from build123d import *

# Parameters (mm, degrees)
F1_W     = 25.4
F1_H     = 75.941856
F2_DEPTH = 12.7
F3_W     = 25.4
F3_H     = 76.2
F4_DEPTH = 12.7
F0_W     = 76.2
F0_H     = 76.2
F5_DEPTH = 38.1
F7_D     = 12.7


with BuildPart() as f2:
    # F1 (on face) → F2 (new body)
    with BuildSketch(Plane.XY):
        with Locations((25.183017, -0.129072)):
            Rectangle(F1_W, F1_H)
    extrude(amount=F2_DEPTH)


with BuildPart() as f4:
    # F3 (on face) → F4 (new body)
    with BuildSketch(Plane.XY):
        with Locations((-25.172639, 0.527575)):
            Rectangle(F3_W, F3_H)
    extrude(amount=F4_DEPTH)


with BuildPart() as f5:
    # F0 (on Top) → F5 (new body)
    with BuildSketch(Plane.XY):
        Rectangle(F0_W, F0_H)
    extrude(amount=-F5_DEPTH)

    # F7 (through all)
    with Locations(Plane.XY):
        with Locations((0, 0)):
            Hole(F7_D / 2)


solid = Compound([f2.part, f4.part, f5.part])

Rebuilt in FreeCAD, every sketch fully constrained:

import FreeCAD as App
import Part
import Sketcher
Q = App.Units.Quantity


def add_polygon(sketch, points):
    """Adds a closed chain of lines whose ends are joined by coincident constraints."""
    first, n = sketch.GeometryCount, len(points)
    for a, b in zip(points, points[1:] + points[:1]):
        sketch.addGeometry(Part.LineSegment(App.Vector(*a, 0), App.Vector(*b, 0)), False)
    for i in range(n):
        sketch.addConstraint(Sketcher.Constraint("Coincident", first + i, 2, first + (i + 1) % n, 1))

doc = App.newDocument("Part")
params = doc.addObject("Spreadsheet::Sheet", "Params")
for row, (alias, value) in enumerate([
    ("sketch1_width", "1 in"),
    ("pad1_length", "0.5 in"),
    ("sketch2_width", "1 in"),
    ("sketch2_height", "3 in"),
    ("pad2_length", "0.5 in"),
    ("sketch3_width", "3 in"),
    ("pad3_length", "1.5 in"),
    ("sketch4_diameter", "0.5 in"),
    ("hole_diameter", "0.5 in"),
], start=1):
    params.set(f"A{row}", alias)
    params.set(f"B{row}", "=" + value)
    params.setAlias(f"B{row}", alias)

body = doc.addObject("PartDesign::Body", "Body")

# Sketch on XY plane
sketch1 = body.newObject("Sketcher::SketchObject", "Sketch")
sketch1.AttachmentSupport = (doc.getObject("XY_Plane"), [""])
sketch1.MapMode = "FlatFace"
add_polygon(sketch1, [(12, 38), (12, -38), (38, -38), (38, 38)])  # lines 0-3
sketch1.addConstraint([
    Sketcher.Constraint("Vertical", 0),
    Sketcher.Constraint("Horizontal", 1),
    Sketcher.Constraint("Vertical", 2),
    Sketcher.Constraint("Horizontal", 3),
    Sketcher.Constraint("DistanceX", 1, 1, 1, 2, Q("1 in")),
    Sketcher.Constraint("DistanceY", 0, 2, -1, 1, Q("1.5 in")),
    Sketcher.Constraint("DistanceY", 0, 2, 0, 1, Q("75.941856 mm")),
    Sketcher.Constraint("DistanceX", -1, 1, 0, 2, Q("12.483017 mm")),
])
sketch1.setExpression("Constraints[8]", "Params.sketch1_width")
pad1 = body.newObject("PartDesign::Pad", "Pad")
pad1.Profile = sketch1
pad1.setExpression("Length", "Params.pad1_length")
body2 = doc.addObject("PartDesign::Body", "Body001")

# Sketch on XY plane
sketch2 = body2.newObject("Sketcher::SketchObject", "Sketch001")
sketch2.AttachmentSupport = (doc.getObject("XY_Plane001"), [""])
sketch2.MapMode = "FlatFace"
add_polygon(sketch2, [(-38, 39), (-38, -38), (-12, -38), (-12, 39)])  # lines 0-3
sketch2.addConstraint([
    Sketcher.Constraint("Vertical", 0),
    Sketcher.Constraint("Horizontal", 1),
    Sketcher.Constraint("Vertical", 2),
    Sketcher.Constraint("Horizontal", 3),
    Sketcher.Constraint("DistanceX", 1, 1, 1, 2, Q("1 in")),
    Sketcher.Constraint("DistanceY", 0, 2, 0, 1, Q("3 in")),
    Sketcher.Constraint("DistanceX", 0, 2, -1, 1, Q("37.872639 mm")),
    Sketcher.Constraint("DistanceY", 0, 2, -1, 1, Q("37.572425 mm")),
])
sketch2.setExpression("Constraints[8]", "Params.sketch2_width")
sketch2.setExpression("Constraints[9]", "Params.sketch2_height")
pad2 = body2.newObject("PartDesign::Pad", "Pad001")
pad2.Profile = sketch2
pad2.setExpression("Length", "Params.pad2_length")
body3 = doc.addObject("PartDesign::Body", "Body002")

# Sketch on XY plane
sketch3 = body3.newObject("Sketcher::SketchObject", "Sketch002")
sketch3.AttachmentSupport = (doc.getObject("XY_Plane002"), [""])
sketch3.MapMode = "FlatFace"
add_polygon(sketch3, [(-38, 38), (-38, -38), (38, -38), (38, 38)])  # lines 0-3
sketch3.addConstraint([
    Sketcher.Constraint("Vertical", 0),
    Sketcher.Constraint("Horizontal", 1),
    Sketcher.Constraint("Vertical", 2),
    Sketcher.Constraint("Horizontal", 3),
    Sketcher.Constraint("Symmetric", 0, 2, 2, 2, -1, 1),
    Sketcher.Constraint("Equal", 3, 0),
    Sketcher.Constraint("DistanceX", 1, 1, 1, 2, Q("3 in")),
])
sketch3.setExpression("Constraints[10]", "Params.sketch3_width")
pad3 = body3.newObject("PartDesign::Pad", "Pad002")
pad3.Profile = sketch3
pad3.setExpression("Length", "Params.pad3_length")
pad3.Reversed = True

# Sketch on XY plane
sketch4 = body3.newObject("Sketcher::SketchObject", "Sketch003")
sketch4.AttachmentSupport = (doc.getObject("XY_Plane002"), [""])
sketch4.MapMode = "FlatFace"
sketch4.addGeometry(Part.Circle(App.Vector(0, 0, 0), App.Vector(0, 0, 1), 6), False)
sketch4.addConstraint([
    Sketcher.Constraint("Coincident", 0, 3, -1, 1),
    Sketcher.Constraint("Diameter", 0, Q("0.5 in")),
])
sketch4.setExpression("Constraints[1]", "Params.sketch4_diameter")
doc.recompute()
hole = body3.newObject("PartDesign::Hole", "Hole")
hole.Profile = sketch4
hole.ThreadType = "None"
hole.setExpression("Diameter", "Params.hole_diameter")
hole.DepthType = "ThroughAll"

doc.recompute()
